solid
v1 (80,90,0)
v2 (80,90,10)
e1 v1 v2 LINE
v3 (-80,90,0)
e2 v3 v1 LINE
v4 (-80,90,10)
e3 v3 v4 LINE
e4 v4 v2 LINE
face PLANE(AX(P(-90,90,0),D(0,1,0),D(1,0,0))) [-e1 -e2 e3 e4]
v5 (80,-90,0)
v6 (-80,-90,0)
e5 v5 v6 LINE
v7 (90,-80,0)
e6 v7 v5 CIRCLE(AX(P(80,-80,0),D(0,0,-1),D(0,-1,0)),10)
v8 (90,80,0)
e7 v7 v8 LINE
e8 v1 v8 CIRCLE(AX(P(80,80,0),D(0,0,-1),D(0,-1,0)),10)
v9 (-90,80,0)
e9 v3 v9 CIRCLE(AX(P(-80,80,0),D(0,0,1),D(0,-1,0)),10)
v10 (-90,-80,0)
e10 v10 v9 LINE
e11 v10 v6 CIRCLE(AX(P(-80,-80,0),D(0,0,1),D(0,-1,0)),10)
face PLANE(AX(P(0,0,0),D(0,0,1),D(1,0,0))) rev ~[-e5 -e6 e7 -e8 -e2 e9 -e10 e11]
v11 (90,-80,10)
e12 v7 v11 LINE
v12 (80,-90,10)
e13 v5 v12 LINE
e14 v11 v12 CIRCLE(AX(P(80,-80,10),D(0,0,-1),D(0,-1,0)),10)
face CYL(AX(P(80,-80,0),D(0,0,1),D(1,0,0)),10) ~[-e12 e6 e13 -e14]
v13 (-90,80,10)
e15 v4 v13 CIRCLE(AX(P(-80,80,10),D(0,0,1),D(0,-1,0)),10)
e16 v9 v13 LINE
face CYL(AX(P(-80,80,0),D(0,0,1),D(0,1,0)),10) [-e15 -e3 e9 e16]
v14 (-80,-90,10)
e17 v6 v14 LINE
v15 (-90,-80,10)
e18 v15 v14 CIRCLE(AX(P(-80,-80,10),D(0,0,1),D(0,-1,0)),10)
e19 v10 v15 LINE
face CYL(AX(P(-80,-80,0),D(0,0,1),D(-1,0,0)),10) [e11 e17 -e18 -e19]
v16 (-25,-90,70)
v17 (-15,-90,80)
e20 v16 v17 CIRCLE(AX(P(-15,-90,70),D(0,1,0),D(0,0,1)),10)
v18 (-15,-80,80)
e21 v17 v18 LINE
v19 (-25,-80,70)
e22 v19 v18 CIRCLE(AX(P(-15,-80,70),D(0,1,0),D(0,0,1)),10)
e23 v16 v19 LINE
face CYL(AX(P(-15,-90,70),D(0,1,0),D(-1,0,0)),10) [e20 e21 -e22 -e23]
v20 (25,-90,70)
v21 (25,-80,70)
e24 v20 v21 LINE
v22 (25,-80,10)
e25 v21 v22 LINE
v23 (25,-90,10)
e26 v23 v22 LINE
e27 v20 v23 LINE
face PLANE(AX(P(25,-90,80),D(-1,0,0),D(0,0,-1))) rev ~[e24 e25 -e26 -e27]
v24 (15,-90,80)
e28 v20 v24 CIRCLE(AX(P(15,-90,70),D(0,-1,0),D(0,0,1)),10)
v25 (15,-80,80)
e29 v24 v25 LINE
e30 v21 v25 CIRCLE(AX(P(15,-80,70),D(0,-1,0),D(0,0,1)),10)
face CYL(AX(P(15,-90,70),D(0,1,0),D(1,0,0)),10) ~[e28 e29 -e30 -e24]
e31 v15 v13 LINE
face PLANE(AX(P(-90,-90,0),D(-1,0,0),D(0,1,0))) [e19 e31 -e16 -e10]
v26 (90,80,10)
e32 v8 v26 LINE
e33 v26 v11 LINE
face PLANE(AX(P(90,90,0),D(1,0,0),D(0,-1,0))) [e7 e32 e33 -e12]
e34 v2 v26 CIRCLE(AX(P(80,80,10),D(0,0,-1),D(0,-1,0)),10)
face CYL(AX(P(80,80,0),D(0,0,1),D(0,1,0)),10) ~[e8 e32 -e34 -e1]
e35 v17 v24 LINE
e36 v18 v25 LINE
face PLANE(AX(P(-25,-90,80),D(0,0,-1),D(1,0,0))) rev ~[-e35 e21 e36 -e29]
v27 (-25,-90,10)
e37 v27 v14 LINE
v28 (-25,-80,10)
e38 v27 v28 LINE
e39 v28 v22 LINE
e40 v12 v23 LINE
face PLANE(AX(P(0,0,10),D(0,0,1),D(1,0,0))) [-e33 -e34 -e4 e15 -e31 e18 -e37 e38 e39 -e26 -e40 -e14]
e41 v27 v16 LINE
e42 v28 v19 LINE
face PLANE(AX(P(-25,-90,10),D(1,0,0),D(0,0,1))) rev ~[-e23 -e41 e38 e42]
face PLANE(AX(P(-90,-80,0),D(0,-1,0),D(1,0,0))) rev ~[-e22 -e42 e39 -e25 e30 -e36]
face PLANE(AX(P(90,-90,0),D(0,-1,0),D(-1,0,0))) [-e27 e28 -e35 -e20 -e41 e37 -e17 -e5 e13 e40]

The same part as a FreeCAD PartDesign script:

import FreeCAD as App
import Part
import Sketcher
Q = App.Units.Quantity


def edges_at(feature, points):
    """Names of the edges that pass closest to the given points."""
    edges = feature.Shape.Edges
    near = lambda p: min(range(len(edges)), key=lambda i: edges[i].distToShape(Part.Vertex(*p))[0])
    return sorted({f"Edge{near(p) + 1}" for p in points})


def add_polygon(sketch, points):
    """Adds a closed chain of lines whose ends are joined by coincident constraints."""
    first, n = sketch.GeometryCount, len(points)
    for a, b in zip(points, points[1:] + points[:1]):
        sketch.addGeometry(Part.LineSegment(App.Vector(*a, 0), App.Vector(*b, 0)), False)
    for i in range(n):
        sketch.addConstraint(Sketcher.Constraint("Coincident", first + i, 2, first + (i + 1) % n, 1))

doc = App.newDocument("Part")
body = doc.addObject("PartDesign::Body", "Body")

# Sketch on XY plane
sketch1 = body.newObject("Sketcher::SketchObject", "Sketch")
sketch1.AttachmentSupport = (doc.getObject("XY_Plane"), [""])
sketch1.MapMode = "FlatFace"
add_polygon(sketch1, [(90, 90), (-90, 90), (-90, -90), (90, -90)])  # lines 0-3
sketch1.addConstraint(Sketcher.Constraint("Horizontal", 0))
sketch1.addConstraint(Sketcher.Constraint("Vertical", 1))
sketch1.addConstraint(Sketcher.Constraint("Horizontal", 2))
sketch1.addConstraint(Sketcher.Constraint("Vertical", 3))
sketch1.addConstraint(Sketcher.Constraint("Symmetric", 0, 2, 2, 2, -1, 1))
sketch1.addConstraint(Sketcher.Constraint("Equal", 2, 1))
sketch1.addConstraint(Sketcher.Constraint("DistanceX", 0, 2, 0, 1, Q("180 mm")))
pad1 = body.newObject("PartDesign::Pad", "Pad")
pad1.Profile = sketch1
pad1.Length = 10

# Sketch on XZ plane
sketch2 = body.newObject("Sketcher::SketchObject", "Sketch001")
sketch2.AttachmentSupport = (doc.getObject("XZ_Plane"), [""])
sketch2.MapMode = "FlatFace"
sketch2.AttachmentOffset = App.Placement(App.Vector(0, 0, 90), App.Rotation())
add_polygon(sketch2, [(-25, 80), (-25, 10), (25, 10), (25, 80)])  # lines 0-3
sketch2.addConstraint(Sketcher.Constraint("Vertical", 0))
sketch2.addConstraint(Sketcher.Constraint("Horizontal", 1))
sketch2.addConstraint(Sketcher.Constraint("Vertical", 2))
sketch2.addConstraint(Sketcher.Constraint("Horizontal", 3))
sketch2.addConstraint(Sketcher.Constraint("DistanceX", 1, 1, 1, 2, Q("50 mm")))
sketch2.addConstraint(Sketcher.Constraint("DistanceY", 0, 2, 0, 1, Q("70 mm")))
sketch2.addConstraint(Sketcher.Constraint("DistanceX", 0, 2, -1, 1, Q("25 mm")))
sketch2.addConstraint(Sketcher.Constraint("DistanceY", -1, 1, 0, 2, Q("10 mm")))
pad2 = body.newObject("PartDesign::Pad", "Pad001")
pad2.Profile = sketch2
pad2.Length = 10
pad2.Reversed = True
doc.recompute()

fillet = body.newObject("PartDesign::Fillet", "Fillet")
fillet.Base = (pad2, edges_at(pad2, [
    (-90, 90, 5),
    (90, 90, 5),
    (-90, -90, 5),
    (90, -90, 5),
    (-25, -85, 80),
    (25, -85, 80),
]))
fillet.Radius = 10

doc.recompute()
